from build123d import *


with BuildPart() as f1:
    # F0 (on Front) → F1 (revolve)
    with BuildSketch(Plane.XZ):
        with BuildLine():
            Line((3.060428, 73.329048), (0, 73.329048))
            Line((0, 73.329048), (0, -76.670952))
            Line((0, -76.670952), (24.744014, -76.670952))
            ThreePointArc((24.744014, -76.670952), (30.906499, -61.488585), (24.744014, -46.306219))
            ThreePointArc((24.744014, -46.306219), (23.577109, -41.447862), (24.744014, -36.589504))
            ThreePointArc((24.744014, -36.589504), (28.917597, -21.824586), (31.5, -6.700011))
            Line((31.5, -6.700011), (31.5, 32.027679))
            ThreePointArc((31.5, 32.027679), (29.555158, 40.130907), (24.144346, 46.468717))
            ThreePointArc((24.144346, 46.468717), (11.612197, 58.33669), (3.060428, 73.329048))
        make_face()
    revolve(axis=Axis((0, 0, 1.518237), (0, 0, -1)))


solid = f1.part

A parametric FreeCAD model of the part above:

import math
import FreeCAD as App
import Part
import Sketcher

V = App.Vector
Q = App.Units.Quantity

doc = App.newDocument("Part")
body = doc.addObject("PartDesign::Body", "Body")

# Sketch on XZ plane
sketch1 = body.newObject("Sketcher::SketchObject", "Sketch")
sketch1.AttachmentSupport = (doc.getObject("XZ_Plane"), [""])
sketch1.MapMode = "FlatFace"
sketch1.addGeometry([
    Part.LineSegment(V(3.1, 73.3, 0), V(0, 73.3, 0)),  # 0
    Part.LineSegment(V(0, 73.3, 0), V(0, -76.7, 0)),  # 1
    Part.LineSegment(V(0, -76.7, 0), V(24.7, -76.7, 0)),  # 2
    Part.ArcOfCircle(Part.Circle(V(9.1, -61.5, 0), V(0, 0, 1), 21.8), math.radians(-44), math.radians(44)),  # 3
    Part.ArcOfCircle(Part.Circle(V(34.3, -41.4, 0), V(0, 0, 1), 10.7), math.radians(153), math.radians(207)),  # 4
    Part.ArcOfCircle(Part.Circle(V(-111.8, 10, 0), V(0, 0, 1), 144.3), math.radians(-18.83), math.radians(-6.64)),  # 5
    Part.LineSegment(V(31.5, -6.7, 0), V(31.5, 32, 0)),  # 6
    Part.ArcOfCircle(Part.Circle(V(13.6, 32, 0), V(0, 0, 1), 17.9), math.radians(0), math.radians(54)),  # 7
    Part.ArcOfCircle(Part.Circle(V(57.9, 94.7, 0), V(0, 0, 1), 58.9), math.radians(-159), math.radians(-125)),  # 8
], False)
sketch1.addConstraint([
    Sketcher.Constraint("Coincident", 0, 2, 1, 1),
    Sketcher.Constraint("Coincident", 1, 2, 2, 1),
    Sketcher.Constraint("Coincident", 2, 2, 3, 1),
    Sketcher.Constraint("Coincident", 3, 2, 4, 2),
    Sketcher.Constraint("Coincident", 4, 1, 5, 1),
    Sketcher.Constraint("Coincident", 5, 2, 6, 1),
    Sketcher.Constraint("Tangent", 6, 2, 7, 1),
    Sketcher.Constraint("Coincident", 7, 2, 8, 2),
    Sketcher.Constraint("Coincident", 8, 1, 0, 1),
    Sketcher.Constraint("Horizontal", 0),
    Sketcher.Constraint("Vertical", 1),
    Sketcher.Constraint("Horizontal", 2),
    Sketcher.Constraint("Vertical", 6),
    Sketcher.Constraint("PointOnObject", 0, 2, -2),
    Sketcher.Constraint("Vertical", 2, 2, 3, 2),
    Sketcher.Constraint("Vertical", 3, 2, 4, 1),
    Sketcher.Constraint("DistanceY", 1, 2, 1, 1, Q("150 mm")),
    Sketcher.Constraint("DistanceX", -1, 1, 5, 2, Q("31.5 mm")),
    Sketcher.Constraint("Radius", 5, Q("144.313499 mm")),
    Sketcher.Constraint("Radius", 3, Q("21.783459 mm")),
    Sketcher.Constraint("Radius", 4, Q("10.697231 mm")),
    Sketcher.Constraint("Radius", 7, Q("17.853559 mm")),
    Sketcher.Constraint("Radius", 8, Q("58.872372 mm")),
    Sketcher.Constraint("DistanceY", 6, 1, 6, 2, Q("38.72769 mm")),
    Sketcher.Constraint("DistanceX", 3, 3, 4, 3, Q("25.1513 mm")),
    Sketcher.Constraint("DistanceX", 7, 3, 4, 3, Q("20.627899 mm")),
    Sketcher.Constraint("DistanceY", 3, 2, 7, 3, Q("78.333899 mm")),
    Sketcher.Constraint("DistanceY", 7, 2, 8, 3, Q("48.2186 mm")),
    Sketcher.Constraint("DistanceX", 0, 2, 0, 1, Q("3.060428 mm")),
    Sketcher.Constraint("DistanceX", 2, 1, 2, 2, Q("24.744014 mm")),
    Sketcher.Constraint("DistanceY", 4, 3, -1, 1, Q("41.447862 mm")),
])
revolution = body.newObject("PartDesign::Revolution", "Revolution")
revolution.Profile = sketch1
revolution.ReferenceAxis = (sketch1, ["V_Axis"])
revolution.Angle = 360

doc.recompute()
